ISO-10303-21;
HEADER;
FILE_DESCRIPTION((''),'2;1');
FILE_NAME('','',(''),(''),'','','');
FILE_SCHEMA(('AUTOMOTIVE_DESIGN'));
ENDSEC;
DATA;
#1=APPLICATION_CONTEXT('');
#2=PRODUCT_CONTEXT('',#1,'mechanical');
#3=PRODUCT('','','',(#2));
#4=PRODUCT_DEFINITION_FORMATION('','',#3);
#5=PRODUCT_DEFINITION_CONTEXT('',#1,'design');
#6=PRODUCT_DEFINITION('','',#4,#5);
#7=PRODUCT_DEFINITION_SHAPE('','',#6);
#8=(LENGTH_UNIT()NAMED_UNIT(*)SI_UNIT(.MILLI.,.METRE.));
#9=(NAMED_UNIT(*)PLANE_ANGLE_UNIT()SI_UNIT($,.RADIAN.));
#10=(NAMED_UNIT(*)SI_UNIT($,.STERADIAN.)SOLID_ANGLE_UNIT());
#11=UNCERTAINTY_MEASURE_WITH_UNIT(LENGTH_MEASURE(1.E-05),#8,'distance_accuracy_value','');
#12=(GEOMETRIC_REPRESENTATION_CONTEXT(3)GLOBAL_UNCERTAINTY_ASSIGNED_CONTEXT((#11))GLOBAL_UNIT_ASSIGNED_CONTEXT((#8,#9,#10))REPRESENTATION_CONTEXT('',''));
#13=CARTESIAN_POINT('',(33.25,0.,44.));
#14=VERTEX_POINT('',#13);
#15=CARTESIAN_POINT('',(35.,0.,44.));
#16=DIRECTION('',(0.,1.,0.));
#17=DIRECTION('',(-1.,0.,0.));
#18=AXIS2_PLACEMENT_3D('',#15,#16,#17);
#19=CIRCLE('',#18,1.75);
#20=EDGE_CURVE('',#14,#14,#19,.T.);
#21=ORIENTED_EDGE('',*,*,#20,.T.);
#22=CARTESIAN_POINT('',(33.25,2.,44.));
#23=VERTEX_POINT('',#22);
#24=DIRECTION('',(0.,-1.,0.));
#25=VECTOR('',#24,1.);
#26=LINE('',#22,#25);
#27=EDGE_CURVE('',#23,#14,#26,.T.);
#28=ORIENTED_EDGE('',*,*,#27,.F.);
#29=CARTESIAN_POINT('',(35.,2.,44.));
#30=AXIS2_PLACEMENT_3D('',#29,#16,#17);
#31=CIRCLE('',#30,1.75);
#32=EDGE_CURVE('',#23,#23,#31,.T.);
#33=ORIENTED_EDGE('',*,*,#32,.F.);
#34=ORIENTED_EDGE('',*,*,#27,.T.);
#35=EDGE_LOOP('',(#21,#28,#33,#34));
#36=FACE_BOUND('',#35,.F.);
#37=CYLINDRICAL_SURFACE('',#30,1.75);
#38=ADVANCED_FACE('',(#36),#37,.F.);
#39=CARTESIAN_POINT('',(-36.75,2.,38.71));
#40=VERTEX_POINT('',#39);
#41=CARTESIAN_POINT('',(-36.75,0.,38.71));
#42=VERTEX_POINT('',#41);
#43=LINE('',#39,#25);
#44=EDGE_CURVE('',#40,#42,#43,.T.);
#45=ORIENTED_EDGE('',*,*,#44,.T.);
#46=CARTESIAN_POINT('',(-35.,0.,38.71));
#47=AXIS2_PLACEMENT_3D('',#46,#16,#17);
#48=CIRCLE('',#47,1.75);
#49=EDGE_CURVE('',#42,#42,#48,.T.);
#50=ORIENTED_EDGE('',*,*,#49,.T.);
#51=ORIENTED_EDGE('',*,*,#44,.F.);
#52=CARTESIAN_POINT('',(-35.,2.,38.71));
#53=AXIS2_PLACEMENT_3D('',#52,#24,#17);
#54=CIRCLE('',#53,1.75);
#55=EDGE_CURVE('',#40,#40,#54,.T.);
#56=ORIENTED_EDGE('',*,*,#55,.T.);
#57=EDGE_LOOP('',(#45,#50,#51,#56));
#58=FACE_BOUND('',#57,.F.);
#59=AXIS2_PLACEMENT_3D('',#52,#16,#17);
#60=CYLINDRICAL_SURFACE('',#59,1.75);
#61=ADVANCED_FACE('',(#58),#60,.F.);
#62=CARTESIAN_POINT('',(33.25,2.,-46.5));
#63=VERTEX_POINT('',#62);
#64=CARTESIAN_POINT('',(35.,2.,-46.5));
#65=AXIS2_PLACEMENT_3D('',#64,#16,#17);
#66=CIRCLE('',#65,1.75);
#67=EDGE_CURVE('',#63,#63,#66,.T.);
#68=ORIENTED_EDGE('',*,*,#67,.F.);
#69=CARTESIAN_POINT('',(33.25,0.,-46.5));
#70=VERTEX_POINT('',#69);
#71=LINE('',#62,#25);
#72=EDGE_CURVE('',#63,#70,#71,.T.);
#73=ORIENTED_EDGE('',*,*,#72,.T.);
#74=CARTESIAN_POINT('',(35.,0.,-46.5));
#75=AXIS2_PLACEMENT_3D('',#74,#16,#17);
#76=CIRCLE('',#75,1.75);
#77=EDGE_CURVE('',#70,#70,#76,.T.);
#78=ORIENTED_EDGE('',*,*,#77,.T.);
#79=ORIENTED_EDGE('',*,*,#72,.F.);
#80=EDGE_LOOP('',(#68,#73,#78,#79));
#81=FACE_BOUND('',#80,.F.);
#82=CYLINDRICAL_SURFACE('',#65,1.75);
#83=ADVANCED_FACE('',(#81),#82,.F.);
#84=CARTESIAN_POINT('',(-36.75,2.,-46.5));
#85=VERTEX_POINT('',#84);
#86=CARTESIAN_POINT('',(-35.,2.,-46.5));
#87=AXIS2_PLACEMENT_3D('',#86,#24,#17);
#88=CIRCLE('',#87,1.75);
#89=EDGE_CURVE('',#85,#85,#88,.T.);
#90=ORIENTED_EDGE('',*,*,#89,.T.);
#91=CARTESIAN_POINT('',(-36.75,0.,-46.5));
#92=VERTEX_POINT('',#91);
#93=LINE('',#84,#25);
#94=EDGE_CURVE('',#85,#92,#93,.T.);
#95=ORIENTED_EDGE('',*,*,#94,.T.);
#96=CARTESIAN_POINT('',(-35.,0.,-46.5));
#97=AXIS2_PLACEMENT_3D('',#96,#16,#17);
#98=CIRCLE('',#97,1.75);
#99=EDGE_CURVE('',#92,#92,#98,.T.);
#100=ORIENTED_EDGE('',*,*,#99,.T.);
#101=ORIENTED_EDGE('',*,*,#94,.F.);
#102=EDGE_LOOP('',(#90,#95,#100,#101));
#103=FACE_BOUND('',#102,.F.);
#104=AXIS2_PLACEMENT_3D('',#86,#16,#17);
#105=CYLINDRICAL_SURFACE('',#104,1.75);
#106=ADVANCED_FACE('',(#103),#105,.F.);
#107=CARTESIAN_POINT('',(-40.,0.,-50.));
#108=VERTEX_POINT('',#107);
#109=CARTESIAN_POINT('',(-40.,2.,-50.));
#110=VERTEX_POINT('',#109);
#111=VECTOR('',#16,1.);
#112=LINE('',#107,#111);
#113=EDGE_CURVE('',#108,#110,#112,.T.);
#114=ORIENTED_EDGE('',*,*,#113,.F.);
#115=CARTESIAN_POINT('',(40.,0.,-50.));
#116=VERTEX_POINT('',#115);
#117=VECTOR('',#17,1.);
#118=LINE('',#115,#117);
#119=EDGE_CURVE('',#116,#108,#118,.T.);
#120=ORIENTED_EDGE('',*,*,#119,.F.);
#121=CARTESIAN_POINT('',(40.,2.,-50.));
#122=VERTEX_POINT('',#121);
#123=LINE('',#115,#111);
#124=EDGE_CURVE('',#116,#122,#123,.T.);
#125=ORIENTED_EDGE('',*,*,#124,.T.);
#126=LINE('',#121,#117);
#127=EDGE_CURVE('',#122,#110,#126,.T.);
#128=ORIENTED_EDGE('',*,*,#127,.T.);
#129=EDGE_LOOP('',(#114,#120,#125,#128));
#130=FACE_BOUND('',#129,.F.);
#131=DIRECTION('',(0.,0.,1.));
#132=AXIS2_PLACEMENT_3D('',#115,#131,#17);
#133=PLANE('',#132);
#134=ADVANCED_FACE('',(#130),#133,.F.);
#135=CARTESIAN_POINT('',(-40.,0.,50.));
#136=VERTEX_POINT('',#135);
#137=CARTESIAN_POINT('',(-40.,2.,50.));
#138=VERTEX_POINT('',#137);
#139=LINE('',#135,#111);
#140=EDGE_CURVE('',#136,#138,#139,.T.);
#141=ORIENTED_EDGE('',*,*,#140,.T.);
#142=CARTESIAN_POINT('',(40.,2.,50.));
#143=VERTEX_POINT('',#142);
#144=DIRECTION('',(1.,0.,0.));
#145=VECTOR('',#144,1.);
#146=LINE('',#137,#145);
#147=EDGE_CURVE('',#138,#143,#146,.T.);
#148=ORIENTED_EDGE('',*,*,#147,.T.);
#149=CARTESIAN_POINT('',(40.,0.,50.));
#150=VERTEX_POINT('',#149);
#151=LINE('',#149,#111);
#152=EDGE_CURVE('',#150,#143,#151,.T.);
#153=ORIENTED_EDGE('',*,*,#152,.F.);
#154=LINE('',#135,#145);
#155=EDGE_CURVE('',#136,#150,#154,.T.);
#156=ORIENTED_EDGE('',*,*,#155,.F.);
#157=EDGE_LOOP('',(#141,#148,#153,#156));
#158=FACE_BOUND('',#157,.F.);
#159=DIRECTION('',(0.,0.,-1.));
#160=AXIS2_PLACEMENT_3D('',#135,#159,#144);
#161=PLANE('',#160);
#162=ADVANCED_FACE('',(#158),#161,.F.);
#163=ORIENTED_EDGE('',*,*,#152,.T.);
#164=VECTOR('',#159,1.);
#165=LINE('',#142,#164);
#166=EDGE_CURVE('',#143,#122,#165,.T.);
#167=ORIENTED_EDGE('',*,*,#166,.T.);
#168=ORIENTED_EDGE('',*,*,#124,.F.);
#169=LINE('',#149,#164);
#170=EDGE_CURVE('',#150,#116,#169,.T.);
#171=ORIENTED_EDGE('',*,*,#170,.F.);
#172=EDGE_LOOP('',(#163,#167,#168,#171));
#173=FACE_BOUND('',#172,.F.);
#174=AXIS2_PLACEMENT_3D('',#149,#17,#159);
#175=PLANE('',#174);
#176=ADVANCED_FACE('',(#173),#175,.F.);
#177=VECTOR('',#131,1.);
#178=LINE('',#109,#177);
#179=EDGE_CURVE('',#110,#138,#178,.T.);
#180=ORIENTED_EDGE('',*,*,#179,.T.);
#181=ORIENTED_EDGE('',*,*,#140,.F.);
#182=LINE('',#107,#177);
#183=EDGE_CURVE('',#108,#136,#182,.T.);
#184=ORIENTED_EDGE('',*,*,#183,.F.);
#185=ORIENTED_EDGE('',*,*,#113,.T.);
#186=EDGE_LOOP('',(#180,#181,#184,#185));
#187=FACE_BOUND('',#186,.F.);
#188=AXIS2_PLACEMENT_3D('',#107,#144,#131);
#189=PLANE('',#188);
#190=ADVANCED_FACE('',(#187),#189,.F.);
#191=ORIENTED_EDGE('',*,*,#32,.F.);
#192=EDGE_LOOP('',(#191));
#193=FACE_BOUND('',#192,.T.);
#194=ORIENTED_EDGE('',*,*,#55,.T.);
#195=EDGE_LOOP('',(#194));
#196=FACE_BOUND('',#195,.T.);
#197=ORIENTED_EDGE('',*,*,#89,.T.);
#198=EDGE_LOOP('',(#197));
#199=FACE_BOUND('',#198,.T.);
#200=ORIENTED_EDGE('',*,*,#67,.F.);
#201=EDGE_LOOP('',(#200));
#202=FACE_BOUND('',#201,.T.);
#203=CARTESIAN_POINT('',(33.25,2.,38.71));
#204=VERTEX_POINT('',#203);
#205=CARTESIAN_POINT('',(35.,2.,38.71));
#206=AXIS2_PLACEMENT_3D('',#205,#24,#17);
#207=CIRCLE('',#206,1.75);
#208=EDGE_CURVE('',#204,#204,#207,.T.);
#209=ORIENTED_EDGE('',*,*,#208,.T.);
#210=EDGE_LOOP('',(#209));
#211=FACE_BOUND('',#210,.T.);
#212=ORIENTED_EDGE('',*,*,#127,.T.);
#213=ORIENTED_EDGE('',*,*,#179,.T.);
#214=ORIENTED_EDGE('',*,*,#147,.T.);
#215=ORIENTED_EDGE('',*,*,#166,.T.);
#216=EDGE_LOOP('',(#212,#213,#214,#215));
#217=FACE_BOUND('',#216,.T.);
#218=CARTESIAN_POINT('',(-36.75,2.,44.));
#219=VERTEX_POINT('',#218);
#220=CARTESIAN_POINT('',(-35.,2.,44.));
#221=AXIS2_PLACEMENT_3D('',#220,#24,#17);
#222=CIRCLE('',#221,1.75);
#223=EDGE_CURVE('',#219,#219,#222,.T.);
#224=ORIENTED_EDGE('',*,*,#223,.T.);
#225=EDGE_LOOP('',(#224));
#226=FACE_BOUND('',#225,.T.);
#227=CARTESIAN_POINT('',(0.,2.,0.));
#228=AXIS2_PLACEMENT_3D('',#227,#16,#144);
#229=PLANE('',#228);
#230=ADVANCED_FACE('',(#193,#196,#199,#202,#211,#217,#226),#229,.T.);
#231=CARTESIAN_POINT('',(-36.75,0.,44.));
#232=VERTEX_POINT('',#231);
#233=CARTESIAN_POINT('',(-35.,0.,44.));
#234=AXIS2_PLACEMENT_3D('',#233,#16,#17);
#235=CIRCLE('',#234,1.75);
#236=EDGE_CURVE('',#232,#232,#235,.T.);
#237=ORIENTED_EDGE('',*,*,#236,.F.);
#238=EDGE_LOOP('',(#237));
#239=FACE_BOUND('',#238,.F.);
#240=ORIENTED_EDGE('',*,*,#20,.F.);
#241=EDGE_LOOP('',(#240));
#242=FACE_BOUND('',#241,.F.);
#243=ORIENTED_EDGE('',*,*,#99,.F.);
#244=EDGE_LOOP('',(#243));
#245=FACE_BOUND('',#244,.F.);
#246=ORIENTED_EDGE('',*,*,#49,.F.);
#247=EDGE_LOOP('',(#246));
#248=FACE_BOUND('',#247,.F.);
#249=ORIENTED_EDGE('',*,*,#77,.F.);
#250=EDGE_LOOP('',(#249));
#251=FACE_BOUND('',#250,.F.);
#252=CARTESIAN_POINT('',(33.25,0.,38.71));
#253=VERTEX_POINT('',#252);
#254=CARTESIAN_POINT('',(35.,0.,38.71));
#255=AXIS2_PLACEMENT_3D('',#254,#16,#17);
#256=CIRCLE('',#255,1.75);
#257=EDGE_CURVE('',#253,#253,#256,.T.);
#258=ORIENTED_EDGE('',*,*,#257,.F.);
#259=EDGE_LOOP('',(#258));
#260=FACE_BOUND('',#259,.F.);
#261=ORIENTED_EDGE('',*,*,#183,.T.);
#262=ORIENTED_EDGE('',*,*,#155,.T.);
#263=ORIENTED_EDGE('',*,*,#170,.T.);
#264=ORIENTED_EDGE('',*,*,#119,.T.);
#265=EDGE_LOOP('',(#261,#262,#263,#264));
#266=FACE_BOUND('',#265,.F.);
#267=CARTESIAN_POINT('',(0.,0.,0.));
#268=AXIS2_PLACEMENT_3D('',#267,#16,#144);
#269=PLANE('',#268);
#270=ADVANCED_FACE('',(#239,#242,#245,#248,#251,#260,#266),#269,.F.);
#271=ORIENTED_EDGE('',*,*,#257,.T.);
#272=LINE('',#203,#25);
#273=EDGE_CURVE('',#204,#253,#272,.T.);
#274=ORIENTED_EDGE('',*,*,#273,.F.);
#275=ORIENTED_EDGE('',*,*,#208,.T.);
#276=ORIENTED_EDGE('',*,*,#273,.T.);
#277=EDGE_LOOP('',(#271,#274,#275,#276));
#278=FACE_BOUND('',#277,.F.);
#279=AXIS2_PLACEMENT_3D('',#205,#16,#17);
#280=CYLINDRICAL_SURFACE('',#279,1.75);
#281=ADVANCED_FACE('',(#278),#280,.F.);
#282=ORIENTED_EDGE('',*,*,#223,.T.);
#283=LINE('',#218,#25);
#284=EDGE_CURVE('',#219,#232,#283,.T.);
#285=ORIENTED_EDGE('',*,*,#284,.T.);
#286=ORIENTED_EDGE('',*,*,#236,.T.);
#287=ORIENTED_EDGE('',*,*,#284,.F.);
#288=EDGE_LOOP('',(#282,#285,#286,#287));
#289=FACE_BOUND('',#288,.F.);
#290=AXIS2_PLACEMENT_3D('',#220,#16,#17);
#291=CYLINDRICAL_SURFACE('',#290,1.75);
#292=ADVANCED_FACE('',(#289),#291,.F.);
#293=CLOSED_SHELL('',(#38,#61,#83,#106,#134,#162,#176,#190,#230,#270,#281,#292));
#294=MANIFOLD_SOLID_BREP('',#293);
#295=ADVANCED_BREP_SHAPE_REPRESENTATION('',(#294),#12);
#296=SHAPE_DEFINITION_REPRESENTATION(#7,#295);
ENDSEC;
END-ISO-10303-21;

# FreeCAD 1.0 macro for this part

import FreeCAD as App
import Part
import Sketcher

doc = App.newDocument("Part")
body = doc.addObject("PartDesign::Body", "Body")

# Sketch on XZ plane
sketch1 = body.newObject("Sketcher::SketchObject", "Sketch")
sketch1.AttachmentSupport = (doc.getObject("XZ_Plane"), [""])
sketch1.MapMode = "FlatFace"
sketch1.addGeometry([
    Part.LineSegment(App.Vector(-40, -50, 0), App.Vector(-40, 50, 0)),
    Part.LineSegment(App.Vector(-40, 50, 0), App.Vector(40, 50, 0)),
    Part.LineSegment(App.Vector(40, 50, 0), App.Vector(40, -50, 0)),
    Part.LineSegment(App.Vector(40, -50, 0), App.Vector(-40, -50, 0)),
], False)
sketch1.addConstraint([
    Sketcher.Constraint("Coincident", 0, 2, 1, 1),
    Sketcher.Constraint("Coincident", 1, 2, 2, 1),
    Sketcher.Constraint("Coincident", 2, 2, 3, 1),
    Sketcher.Constraint("Coincident", 3, 2, 0, 1),
    Sketcher.Constraint("Vertical", 0),
    Sketcher.Constraint("Horizontal", 1),
    Sketcher.Constraint("Vertical", 2),
    Sketcher.Constraint("Horizontal", 3),
    Sketcher.Constraint("Symmetric", 0, 2, 2, 2, -1, 1),
    Sketcher.Constraint("DistanceX", 1, 1, 1, 2, 80.0),
    Sketcher.Constraint("DistanceY", 0, 1, 0, 2, 100.0),
])
pad1 = body.newObject("PartDesign::Pad", "Pad")
pad1.Profile = sketch1
pad1.Length = 2
pad1.Reversed = True

# Sketch on XZ plane
sketch2 = body.newObject("Sketcher::SketchObject", "Sketch001")
sketch2.AttachmentSupport = (doc.getObject("XZ_Plane"), [""])
sketch2.MapMode = "FlatFace"
sketch2.AttachmentOffset = App.Placement(App.Vector(0, 0, -2), App.Rotation())
sketch2.addGeometry([
    Part.Circle(App.Vector(35, -46.5, 0), App.Vector(0, 0, 1), 1.75),
    Part.Circle(App.Vector(35, 44, 0), App.Vector(0, 0, 1), 1.75),
    Part.Circle(App.Vector(-35, 44, 0), App.Vector(0, 0, 1), 1.75),
    Part.Circle(App.Vector(-35, -46.5, 0), App.Vector(0, 0, 1), 1.75),
], False)
sketch2.addConstraint([
    Sketcher.Constraint("Equal", 0, 1),
    Sketcher.Constraint("Equal", 1, 2),
    Sketcher.Constraint("Equal", 2, 3),
    Sketcher.Constraint("Symmetric", 1, 3, 2, 3, -2),
    Sketcher.Constraint("Symmetric", 0, 3, 3, 3, -2),
    Sketcher.Constraint("Vertical", 0, 3, 1, 3),
    Sketcher.Constraint("Diameter", 0, 3.5),
    Sketcher.Constraint("DistanceX", -1, 1, 0, 3, 35.0),
    Sketcher.Constraint("DistanceY", 0, 3, 1, 3, 90.5),
    Sketcher.Constraint("DistanceY", -1, 1, 1, 3, 44.0),
])
pocket1 = body.newObject("PartDesign::Pocket", "Pocket")
pocket1.Profile = sketch2
pocket1.Length = 5
pocket1.Reversed = True

# Sketch on XZ plane
sketch3 = body.newObject("Sketcher::SketchObject", "Sketch002")
sketch3.AttachmentSupport = (doc.getObject("XZ_Plane"), [""])
sketch3.MapMode = "FlatFace"
sketch3.AttachmentOffset = App.Placement(App.Vector(0, 0, -2), App.Rotation())
sketch3.addGeometry([
    Part.Circle(App.Vector(-35, 38.71, 0), App.Vector(0, 0, 1), 1.75),
    Part.Circle(App.Vector(35, 38.71, 0), App.Vector(0, 0, 1), 1.75),
], False)
sketch3.addConstraint([
    Sketcher.Constraint("Equal", 0, 1),
    Sketcher.Constraint("Symmetric", 0, 3, 1, 3, -2),
    Sketcher.Constraint("Diameter", 0, 3.5),
    Sketcher.Constraint("DistanceX", 0, 3, -1, 1, 35.0),
    Sketcher.Constraint("DistanceY", -1, 1, 0, 3, 38.71),
])
pocket2 = body.newObject("PartDesign::Pocket", "Pocket001")
pocket2.Profile = sketch3
pocket2.Length = 14
pocket2.Reversed = True

doc.recompute()
